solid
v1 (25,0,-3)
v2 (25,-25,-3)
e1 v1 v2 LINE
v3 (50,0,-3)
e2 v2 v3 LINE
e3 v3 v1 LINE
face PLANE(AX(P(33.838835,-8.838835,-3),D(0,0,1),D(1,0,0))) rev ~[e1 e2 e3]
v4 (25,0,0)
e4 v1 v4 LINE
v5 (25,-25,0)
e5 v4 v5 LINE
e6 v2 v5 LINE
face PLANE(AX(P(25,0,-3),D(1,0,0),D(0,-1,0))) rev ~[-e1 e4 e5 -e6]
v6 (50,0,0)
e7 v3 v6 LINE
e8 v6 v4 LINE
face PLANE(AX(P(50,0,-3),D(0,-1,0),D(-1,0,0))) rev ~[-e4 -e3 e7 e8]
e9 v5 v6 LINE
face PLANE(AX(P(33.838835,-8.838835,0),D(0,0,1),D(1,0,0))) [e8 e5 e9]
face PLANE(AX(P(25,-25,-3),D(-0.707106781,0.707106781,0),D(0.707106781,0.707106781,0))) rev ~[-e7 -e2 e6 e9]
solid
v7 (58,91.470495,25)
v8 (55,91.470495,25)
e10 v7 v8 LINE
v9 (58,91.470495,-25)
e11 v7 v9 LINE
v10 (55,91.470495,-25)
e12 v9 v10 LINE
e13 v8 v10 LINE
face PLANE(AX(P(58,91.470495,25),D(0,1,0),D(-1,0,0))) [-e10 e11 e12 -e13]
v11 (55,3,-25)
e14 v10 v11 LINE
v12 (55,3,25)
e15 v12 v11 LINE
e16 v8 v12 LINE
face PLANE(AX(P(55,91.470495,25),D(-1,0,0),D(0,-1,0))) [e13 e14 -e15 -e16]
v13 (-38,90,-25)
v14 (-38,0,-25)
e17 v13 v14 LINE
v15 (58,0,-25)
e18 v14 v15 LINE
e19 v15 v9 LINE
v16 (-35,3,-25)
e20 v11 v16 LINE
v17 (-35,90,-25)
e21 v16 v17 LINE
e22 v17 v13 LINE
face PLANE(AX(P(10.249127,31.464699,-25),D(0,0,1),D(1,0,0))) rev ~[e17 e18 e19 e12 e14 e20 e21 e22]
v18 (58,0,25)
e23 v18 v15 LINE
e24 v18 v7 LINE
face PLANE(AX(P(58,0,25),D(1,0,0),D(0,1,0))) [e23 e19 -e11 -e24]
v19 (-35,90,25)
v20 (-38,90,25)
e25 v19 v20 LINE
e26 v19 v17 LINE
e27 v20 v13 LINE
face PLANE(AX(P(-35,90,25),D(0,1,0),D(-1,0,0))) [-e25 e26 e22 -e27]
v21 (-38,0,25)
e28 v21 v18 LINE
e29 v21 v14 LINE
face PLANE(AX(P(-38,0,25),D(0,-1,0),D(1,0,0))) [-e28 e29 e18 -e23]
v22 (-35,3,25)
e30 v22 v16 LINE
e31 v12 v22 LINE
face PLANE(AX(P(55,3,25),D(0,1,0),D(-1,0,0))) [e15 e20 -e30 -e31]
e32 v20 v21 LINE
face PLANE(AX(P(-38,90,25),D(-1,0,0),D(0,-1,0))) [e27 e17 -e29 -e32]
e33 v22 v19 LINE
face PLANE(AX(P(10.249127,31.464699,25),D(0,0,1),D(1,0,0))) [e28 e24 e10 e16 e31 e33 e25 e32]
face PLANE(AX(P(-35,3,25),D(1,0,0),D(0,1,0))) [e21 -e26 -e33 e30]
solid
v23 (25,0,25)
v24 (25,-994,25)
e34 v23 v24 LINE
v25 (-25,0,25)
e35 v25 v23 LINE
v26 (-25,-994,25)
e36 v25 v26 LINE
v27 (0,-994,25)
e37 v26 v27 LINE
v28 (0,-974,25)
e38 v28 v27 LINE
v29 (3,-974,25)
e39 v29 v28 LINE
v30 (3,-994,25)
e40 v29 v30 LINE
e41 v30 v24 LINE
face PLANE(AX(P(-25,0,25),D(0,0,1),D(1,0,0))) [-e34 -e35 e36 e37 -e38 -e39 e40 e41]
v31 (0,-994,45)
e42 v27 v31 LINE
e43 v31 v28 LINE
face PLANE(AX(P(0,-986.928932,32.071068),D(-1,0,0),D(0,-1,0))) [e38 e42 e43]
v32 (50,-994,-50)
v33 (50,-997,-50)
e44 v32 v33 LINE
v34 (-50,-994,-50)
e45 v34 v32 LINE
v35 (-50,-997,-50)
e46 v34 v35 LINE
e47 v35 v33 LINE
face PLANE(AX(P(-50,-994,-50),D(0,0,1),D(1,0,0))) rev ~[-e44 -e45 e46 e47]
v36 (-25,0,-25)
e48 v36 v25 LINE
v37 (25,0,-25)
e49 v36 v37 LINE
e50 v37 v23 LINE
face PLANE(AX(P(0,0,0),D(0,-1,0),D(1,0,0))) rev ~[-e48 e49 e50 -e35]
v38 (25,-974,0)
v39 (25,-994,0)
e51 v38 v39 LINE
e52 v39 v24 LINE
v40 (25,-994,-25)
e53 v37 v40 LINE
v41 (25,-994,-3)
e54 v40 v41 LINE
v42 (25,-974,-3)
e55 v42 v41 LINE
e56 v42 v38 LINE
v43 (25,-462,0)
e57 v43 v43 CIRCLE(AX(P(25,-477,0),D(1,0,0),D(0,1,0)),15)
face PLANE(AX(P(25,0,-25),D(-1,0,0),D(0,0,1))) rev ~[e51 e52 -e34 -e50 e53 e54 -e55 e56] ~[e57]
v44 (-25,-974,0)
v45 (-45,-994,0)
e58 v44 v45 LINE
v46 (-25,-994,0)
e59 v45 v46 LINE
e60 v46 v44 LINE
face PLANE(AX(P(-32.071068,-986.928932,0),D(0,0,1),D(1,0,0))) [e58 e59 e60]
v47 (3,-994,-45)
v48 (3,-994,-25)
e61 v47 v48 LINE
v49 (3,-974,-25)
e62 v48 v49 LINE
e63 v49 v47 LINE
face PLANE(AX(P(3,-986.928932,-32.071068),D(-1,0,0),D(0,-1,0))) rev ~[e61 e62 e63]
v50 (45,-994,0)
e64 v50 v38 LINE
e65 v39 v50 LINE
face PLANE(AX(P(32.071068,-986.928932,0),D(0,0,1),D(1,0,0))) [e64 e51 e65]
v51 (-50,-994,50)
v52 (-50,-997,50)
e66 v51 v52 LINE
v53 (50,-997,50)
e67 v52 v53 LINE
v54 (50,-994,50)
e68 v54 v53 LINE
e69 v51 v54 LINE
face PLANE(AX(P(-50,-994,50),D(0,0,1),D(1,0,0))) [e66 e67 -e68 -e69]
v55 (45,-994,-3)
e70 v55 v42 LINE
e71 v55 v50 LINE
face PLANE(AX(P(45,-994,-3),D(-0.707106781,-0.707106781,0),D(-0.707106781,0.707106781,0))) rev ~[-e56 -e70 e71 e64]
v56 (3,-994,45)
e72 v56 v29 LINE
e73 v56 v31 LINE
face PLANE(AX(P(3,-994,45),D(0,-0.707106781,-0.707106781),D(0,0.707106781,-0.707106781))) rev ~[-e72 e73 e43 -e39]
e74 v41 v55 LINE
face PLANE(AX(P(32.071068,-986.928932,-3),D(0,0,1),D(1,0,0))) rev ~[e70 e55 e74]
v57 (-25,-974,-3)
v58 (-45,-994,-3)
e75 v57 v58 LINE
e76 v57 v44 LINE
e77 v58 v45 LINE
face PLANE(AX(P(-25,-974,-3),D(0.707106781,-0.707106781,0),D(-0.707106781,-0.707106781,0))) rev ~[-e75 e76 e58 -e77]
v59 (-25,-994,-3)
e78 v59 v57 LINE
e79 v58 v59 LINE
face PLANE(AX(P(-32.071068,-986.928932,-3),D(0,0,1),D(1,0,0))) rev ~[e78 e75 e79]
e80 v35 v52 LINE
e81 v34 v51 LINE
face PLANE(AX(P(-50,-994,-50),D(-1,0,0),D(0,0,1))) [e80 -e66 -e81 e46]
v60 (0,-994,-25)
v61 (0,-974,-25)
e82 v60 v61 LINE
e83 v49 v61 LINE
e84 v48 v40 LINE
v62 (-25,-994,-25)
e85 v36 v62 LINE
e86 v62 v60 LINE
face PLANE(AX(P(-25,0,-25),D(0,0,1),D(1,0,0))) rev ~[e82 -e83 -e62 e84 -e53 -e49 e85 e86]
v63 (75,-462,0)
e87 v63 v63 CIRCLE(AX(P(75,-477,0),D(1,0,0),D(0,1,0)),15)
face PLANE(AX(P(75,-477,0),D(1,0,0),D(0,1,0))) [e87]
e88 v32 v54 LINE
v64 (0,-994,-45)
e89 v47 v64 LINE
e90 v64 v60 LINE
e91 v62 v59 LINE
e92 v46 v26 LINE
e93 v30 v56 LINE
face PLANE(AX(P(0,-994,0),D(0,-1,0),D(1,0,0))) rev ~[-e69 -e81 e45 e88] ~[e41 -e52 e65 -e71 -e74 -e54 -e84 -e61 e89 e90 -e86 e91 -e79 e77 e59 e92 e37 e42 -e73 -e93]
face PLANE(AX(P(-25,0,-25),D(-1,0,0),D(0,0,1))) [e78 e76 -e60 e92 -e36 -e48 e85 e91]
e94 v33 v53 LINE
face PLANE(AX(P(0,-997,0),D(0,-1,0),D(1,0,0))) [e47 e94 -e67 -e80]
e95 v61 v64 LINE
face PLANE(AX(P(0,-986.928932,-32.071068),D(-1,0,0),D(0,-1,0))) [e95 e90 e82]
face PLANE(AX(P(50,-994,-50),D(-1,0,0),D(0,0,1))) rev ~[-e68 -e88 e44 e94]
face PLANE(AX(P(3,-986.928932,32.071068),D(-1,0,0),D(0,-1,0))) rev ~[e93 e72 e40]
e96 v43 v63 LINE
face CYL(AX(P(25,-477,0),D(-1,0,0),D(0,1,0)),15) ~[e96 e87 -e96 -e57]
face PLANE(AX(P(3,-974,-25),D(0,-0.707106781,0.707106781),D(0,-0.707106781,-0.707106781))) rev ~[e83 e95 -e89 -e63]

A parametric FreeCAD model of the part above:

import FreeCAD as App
import Part
import Sketcher
Q = App.Units.Quantity


def add_polygon(sketch, points):
    """Adds a closed chain of lines whose ends are joined by coincident constraints."""
    first, n = sketch.GeometryCount, len(points)
    for a, b in zip(points, points[1:] + points[:1]):
        sketch.addGeometry(Part.LineSegment(App.Vector(*a, 0), App.Vector(*b, 0)), False)
    for i in range(n):
        sketch.addConstraint(Sketcher.Constraint("Coincident", first + i, 2, first + (i + 1) % n, 1))

doc = App.newDocument("Part")
body = doc.addObject("PartDesign::Body", "Body")

# Sketch on XZ plane
sketch1 = doc.addObject("Sketcher::SketchObject", "Sketch")
body.addObject(sketch1)
sketch1.AttachmentSupport = (doc.XZ_Plane, [""])
sketch1.MapMode = "FlatFace"
add_polygon(sketch1, [(-25, 25), (-25, -25), (25, -25), (25, 25)])  # lines 0-3
sketch1.addConstraint([
    Sketcher.Constraint("Vertical", 0),
    Sketcher.Constraint("Horizontal", 1),
    Sketcher.Constraint("Vertical", 2),
    Sketcher.Constraint("Horizontal", 3),
    Sketcher.Constraint("Symmetric", 0, 2, 2, 2, -1, 1),
    Sketcher.Constraint("Equal", 3, 0),
    Sketcher.Constraint("DistanceX", 1, 1, 1, 2, Q("50 mm")),
])
pad1 = doc.addObject("PartDesign::Pad", "Pad")
body.addObject(pad1)
pad1.Profile = sketch1
pad1.Length = 994

# Sketch on XZ plane
sketch2 = doc.addObject("Sketcher::SketchObject", "Sketch001")
body.addObject(sketch2)
sketch2.AttachmentSupport = (doc.XZ_Plane, [""])
sketch2.MapMode = "FlatFace"
sketch2.AttachmentOffset = App.Placement(App.Vector(0, 0, 994), App.Rotation())
add_polygon(sketch2, [(-50, 50), (-50, -50), (50, -50), (50, 50)])  # lines 0-3
sketch2.addConstraint([
    Sketcher.Constraint("Vertical", 0),
    Sketcher.Constraint("Horizontal", 1),
    Sketcher.Constraint("Vertical", 2),
    Sketcher.Constraint("Horizontal", 3),
    Sketcher.Constraint("Symmetric", 0, 2, 2, 2, -1, 1),
    Sketcher.Constraint("Equal", 3, 0),
    Sketcher.Constraint("DistanceX", 1, 1, 1, 2, Q("100 mm")),
])
pad2 = doc.addObject("PartDesign::Pad", "Pad001")
body.addObject(pad2)
pad2.Profile = sketch2
pad2.Length = 3

# Sketch on XY plane
sketch3 = doc.addObject("Sketcher::SketchObject", "Sketch002")
body.addObject(sketch3)
sketch3.AttachmentSupport = (doc.XY_Plane, [""])
sketch3.MapMode = "FlatFace"
sketch3.AttachmentOffset = App.Placement(App.Vector(0, 0, -3), App.Rotation())
add_polygon(sketch3, [(-25, -994), (-25, -974), (-45, -994)])  # lines 0-2
add_polygon(sketch3, [(45, -994), (25, -974), (25, -994)])  # lines 3-5
sketch3.addConstraint([
    Sketcher.Constraint("Vertical", 0),
    Sketcher.Constraint("Horizontal", 2),
    Sketcher.Constraint("Vertical", 4),
    Sketcher.Constraint("Horizontal", 5),
    Sketcher.Constraint("Symmetric", 0, 2, 3, 2, -2),
    Sketcher.Constraint("Symmetric", 1, 2, 5, 2, -2),
    Sketcher.Constraint("Perpendicular", 1, 3),
    Sketcher.Constraint("DistanceX", 2, 1, 2, 2, Q("20 mm")),
    Sketcher.Constraint("DistanceX", 0, 2, -1, 1, Q("25 mm")),
    Sketcher.Constraint("DistanceY", 0, 2, -1, 1, Q("974 mm")),
])
pad3 = doc.addObject("PartDesign::Pad", "Pad002")
body.addObject(pad3)
pad3.Profile = sketch3
pad3.Length = 3

# Sketch on YZ plane
sketch4 = doc.addObject("Sketcher::SketchObject", "Sketch003")
body.addObject(sketch4)
sketch4.AttachmentSupport = (doc.YZ_Plane, [""])
sketch4.MapMode = "FlatFace"
sketch4.AttachmentOffset = App.Placement(App.Vector(0, 0, 3), App.Rotation())
add_polygon(sketch4, [(-974, 25), (-994, 25), (-994, 45)])  # lines 0-2
add_polygon(sketch4, [(-994, -45), (-994, -25), (-974, -25)])  # lines 3-5
sketch4.addConstraint([
    Sketcher.Constraint("Horizontal", 0),
    Sketcher.Constraint("Vertical", 1),
    Sketcher.Constraint("Vertical", 3),
    Sketcher.Constraint("Horizontal", 4),
    Sketcher.Constraint("Symmetric", 0, 2, 3, 2, -1),
    Sketcher.Constraint("Perpendicular", 2, 5),
    Sketcher.Constraint("Vertical", 2, 2, 4, 2),
    Sketcher.Constraint("Equal", 4, 1),
    Sketcher.Constraint("DistanceX", 0, 2, 0, 1, Q("20 mm")),
    Sketcher.Constraint("DistanceX", 0, 2, -1, 1, Q("994 mm")),
    Sketcher.Constraint("DistanceY", -1, 1, 0, 2, Q("25 mm")),
])
pad4 = doc.addObject("PartDesign::Pad", "Pad003")
body.addObject(pad4)
pad4.Profile = sketch4
pad4.Length = 3
pad4.Reversed = True

# Sketch on YZ plane
sketch5 = doc.addObject("Sketcher::SketchObject", "Sketch004")
body.addObject(sketch5)
sketch5.AttachmentSupport = (doc.YZ_Plane, [""])
sketch5.MapMode = "FlatFace"
sketch5.AttachmentOffset = App.Placement(App.Vector(0, 0, 25), App.Rotation())
sketch5.addGeometry(Part.Circle(App.Vector(-477, 0, 0), App.Vector(0, 0, 1), 15), False)
sketch5.addConstraint([
    Sketcher.Constraint("PointOnObject", 0, 3, -1),
    Sketcher.Constraint("Diameter", 0, Q("30 mm")),
    Sketcher.Constraint("DistanceX", 0, 3, -1, 1, Q("477 mm")),
])
pad5 = doc.addObject("PartDesign::Pad", "Pad004")
body.addObject(pad5)
pad5.Profile = sketch5
pad5.Length = 50
body2 = doc.addObject("PartDesign::Body", "Body001")

# Sketch on XY plane
sketch6 = doc.addObject("Sketcher::SketchObject", "Sketch005")
body2.addObject(sketch6)
sketch6.AttachmentSupport = (doc.getObject("XY_Plane001"), [""])
sketch6.MapMode = "FlatFace"
sketch6.AttachmentOffset = App.Placement(App.Vector(0, 0, 25), App.Rotation())
add_polygon(sketch6, [(-38, 0), (58, 0), (58, 91.470495), (55, 91.470495), (55, 3), (-35, 3), (-35, 90), (-38, 90)])  # lines 0-7
sketch6.addConstraint([
    Sketcher.Constraint("Horizontal", 0),
    Sketcher.Constraint("Vertical", 1),
    Sketcher.Constraint("Horizontal", 2),
    Sketcher.Constraint("Vertical", 3),
    Sketcher.Constraint("Horizontal", 4),
    Sketcher.Constraint("Vertical", 5),
    Sketcher.Constraint("Horizontal", 6),
    Sketcher.Constraint("Vertical", 7),
    Sketcher.Constraint("PointOnObject", 0, 2, -1),
    Sketcher.Constraint("Equal", 2, 6),
    Sketcher.Constraint("Equal", 4, 7),
    Sketcher.Constraint("DistanceX", 0, 1, 0, 2, Q("96 mm")),
    Sketcher.Constraint("DistanceX", 2, 2, 2, 1, Q("3 mm")),
    Sketcher.Constraint("DistanceY", 5, 1, 5, 2, Q("87 mm")),
    Sketcher.Constraint("DistanceX", -1, 1, 0, 2, Q("58 mm")),
    Sketcher.Constraint("DistanceY", 1, 1, 1, 2, Q("91.470495 mm")),
])
pad6 = doc.addObject("PartDesign::Pad", "Pad005")
body2.addObject(pad6)
pad6.Profile = sketch6
pad6.Length = 50
pad6.Reversed = True
body3 = doc.addObject("PartDesign::Body", "Body002")

# Sketch on XY plane
sketch7 = doc.addObject("Sketcher::SketchObject", "Sketch006")
body3.addObject(sketch7)
sketch7.AttachmentSupport = (doc.getObject("XY_Plane002"), [""])
sketch7.MapMode = "FlatFace"
sketch7.AttachmentOffset = App.Placement(App.Vector(0, 0, -3), App.Rotation())
add_polygon(sketch7, [(25, 0), (25, -25), (50, 0)])  # lines 0-2
sketch7.addConstraint([
    Sketcher.Constraint("Vertical", 0),
    Sketcher.Constraint("Horizontal", 2),
    Sketcher.Constraint("PointOnObject", 1, 2, -1),
    Sketcher.Constraint("Equal", 2, 0),
    Sketcher.Constraint("DistanceX", 2, 2, 2, 1, Q("25 mm")),
    Sketcher.Constraint("DistanceX", -1, 1, 0, 2, Q("25 mm")),
])
pad7 = doc.addObject("PartDesign::Pad", "Pad006")
body3.addObject(pad7)
pad7.Profile = sketch7
pad7.Length = 3

doc.recompute()
